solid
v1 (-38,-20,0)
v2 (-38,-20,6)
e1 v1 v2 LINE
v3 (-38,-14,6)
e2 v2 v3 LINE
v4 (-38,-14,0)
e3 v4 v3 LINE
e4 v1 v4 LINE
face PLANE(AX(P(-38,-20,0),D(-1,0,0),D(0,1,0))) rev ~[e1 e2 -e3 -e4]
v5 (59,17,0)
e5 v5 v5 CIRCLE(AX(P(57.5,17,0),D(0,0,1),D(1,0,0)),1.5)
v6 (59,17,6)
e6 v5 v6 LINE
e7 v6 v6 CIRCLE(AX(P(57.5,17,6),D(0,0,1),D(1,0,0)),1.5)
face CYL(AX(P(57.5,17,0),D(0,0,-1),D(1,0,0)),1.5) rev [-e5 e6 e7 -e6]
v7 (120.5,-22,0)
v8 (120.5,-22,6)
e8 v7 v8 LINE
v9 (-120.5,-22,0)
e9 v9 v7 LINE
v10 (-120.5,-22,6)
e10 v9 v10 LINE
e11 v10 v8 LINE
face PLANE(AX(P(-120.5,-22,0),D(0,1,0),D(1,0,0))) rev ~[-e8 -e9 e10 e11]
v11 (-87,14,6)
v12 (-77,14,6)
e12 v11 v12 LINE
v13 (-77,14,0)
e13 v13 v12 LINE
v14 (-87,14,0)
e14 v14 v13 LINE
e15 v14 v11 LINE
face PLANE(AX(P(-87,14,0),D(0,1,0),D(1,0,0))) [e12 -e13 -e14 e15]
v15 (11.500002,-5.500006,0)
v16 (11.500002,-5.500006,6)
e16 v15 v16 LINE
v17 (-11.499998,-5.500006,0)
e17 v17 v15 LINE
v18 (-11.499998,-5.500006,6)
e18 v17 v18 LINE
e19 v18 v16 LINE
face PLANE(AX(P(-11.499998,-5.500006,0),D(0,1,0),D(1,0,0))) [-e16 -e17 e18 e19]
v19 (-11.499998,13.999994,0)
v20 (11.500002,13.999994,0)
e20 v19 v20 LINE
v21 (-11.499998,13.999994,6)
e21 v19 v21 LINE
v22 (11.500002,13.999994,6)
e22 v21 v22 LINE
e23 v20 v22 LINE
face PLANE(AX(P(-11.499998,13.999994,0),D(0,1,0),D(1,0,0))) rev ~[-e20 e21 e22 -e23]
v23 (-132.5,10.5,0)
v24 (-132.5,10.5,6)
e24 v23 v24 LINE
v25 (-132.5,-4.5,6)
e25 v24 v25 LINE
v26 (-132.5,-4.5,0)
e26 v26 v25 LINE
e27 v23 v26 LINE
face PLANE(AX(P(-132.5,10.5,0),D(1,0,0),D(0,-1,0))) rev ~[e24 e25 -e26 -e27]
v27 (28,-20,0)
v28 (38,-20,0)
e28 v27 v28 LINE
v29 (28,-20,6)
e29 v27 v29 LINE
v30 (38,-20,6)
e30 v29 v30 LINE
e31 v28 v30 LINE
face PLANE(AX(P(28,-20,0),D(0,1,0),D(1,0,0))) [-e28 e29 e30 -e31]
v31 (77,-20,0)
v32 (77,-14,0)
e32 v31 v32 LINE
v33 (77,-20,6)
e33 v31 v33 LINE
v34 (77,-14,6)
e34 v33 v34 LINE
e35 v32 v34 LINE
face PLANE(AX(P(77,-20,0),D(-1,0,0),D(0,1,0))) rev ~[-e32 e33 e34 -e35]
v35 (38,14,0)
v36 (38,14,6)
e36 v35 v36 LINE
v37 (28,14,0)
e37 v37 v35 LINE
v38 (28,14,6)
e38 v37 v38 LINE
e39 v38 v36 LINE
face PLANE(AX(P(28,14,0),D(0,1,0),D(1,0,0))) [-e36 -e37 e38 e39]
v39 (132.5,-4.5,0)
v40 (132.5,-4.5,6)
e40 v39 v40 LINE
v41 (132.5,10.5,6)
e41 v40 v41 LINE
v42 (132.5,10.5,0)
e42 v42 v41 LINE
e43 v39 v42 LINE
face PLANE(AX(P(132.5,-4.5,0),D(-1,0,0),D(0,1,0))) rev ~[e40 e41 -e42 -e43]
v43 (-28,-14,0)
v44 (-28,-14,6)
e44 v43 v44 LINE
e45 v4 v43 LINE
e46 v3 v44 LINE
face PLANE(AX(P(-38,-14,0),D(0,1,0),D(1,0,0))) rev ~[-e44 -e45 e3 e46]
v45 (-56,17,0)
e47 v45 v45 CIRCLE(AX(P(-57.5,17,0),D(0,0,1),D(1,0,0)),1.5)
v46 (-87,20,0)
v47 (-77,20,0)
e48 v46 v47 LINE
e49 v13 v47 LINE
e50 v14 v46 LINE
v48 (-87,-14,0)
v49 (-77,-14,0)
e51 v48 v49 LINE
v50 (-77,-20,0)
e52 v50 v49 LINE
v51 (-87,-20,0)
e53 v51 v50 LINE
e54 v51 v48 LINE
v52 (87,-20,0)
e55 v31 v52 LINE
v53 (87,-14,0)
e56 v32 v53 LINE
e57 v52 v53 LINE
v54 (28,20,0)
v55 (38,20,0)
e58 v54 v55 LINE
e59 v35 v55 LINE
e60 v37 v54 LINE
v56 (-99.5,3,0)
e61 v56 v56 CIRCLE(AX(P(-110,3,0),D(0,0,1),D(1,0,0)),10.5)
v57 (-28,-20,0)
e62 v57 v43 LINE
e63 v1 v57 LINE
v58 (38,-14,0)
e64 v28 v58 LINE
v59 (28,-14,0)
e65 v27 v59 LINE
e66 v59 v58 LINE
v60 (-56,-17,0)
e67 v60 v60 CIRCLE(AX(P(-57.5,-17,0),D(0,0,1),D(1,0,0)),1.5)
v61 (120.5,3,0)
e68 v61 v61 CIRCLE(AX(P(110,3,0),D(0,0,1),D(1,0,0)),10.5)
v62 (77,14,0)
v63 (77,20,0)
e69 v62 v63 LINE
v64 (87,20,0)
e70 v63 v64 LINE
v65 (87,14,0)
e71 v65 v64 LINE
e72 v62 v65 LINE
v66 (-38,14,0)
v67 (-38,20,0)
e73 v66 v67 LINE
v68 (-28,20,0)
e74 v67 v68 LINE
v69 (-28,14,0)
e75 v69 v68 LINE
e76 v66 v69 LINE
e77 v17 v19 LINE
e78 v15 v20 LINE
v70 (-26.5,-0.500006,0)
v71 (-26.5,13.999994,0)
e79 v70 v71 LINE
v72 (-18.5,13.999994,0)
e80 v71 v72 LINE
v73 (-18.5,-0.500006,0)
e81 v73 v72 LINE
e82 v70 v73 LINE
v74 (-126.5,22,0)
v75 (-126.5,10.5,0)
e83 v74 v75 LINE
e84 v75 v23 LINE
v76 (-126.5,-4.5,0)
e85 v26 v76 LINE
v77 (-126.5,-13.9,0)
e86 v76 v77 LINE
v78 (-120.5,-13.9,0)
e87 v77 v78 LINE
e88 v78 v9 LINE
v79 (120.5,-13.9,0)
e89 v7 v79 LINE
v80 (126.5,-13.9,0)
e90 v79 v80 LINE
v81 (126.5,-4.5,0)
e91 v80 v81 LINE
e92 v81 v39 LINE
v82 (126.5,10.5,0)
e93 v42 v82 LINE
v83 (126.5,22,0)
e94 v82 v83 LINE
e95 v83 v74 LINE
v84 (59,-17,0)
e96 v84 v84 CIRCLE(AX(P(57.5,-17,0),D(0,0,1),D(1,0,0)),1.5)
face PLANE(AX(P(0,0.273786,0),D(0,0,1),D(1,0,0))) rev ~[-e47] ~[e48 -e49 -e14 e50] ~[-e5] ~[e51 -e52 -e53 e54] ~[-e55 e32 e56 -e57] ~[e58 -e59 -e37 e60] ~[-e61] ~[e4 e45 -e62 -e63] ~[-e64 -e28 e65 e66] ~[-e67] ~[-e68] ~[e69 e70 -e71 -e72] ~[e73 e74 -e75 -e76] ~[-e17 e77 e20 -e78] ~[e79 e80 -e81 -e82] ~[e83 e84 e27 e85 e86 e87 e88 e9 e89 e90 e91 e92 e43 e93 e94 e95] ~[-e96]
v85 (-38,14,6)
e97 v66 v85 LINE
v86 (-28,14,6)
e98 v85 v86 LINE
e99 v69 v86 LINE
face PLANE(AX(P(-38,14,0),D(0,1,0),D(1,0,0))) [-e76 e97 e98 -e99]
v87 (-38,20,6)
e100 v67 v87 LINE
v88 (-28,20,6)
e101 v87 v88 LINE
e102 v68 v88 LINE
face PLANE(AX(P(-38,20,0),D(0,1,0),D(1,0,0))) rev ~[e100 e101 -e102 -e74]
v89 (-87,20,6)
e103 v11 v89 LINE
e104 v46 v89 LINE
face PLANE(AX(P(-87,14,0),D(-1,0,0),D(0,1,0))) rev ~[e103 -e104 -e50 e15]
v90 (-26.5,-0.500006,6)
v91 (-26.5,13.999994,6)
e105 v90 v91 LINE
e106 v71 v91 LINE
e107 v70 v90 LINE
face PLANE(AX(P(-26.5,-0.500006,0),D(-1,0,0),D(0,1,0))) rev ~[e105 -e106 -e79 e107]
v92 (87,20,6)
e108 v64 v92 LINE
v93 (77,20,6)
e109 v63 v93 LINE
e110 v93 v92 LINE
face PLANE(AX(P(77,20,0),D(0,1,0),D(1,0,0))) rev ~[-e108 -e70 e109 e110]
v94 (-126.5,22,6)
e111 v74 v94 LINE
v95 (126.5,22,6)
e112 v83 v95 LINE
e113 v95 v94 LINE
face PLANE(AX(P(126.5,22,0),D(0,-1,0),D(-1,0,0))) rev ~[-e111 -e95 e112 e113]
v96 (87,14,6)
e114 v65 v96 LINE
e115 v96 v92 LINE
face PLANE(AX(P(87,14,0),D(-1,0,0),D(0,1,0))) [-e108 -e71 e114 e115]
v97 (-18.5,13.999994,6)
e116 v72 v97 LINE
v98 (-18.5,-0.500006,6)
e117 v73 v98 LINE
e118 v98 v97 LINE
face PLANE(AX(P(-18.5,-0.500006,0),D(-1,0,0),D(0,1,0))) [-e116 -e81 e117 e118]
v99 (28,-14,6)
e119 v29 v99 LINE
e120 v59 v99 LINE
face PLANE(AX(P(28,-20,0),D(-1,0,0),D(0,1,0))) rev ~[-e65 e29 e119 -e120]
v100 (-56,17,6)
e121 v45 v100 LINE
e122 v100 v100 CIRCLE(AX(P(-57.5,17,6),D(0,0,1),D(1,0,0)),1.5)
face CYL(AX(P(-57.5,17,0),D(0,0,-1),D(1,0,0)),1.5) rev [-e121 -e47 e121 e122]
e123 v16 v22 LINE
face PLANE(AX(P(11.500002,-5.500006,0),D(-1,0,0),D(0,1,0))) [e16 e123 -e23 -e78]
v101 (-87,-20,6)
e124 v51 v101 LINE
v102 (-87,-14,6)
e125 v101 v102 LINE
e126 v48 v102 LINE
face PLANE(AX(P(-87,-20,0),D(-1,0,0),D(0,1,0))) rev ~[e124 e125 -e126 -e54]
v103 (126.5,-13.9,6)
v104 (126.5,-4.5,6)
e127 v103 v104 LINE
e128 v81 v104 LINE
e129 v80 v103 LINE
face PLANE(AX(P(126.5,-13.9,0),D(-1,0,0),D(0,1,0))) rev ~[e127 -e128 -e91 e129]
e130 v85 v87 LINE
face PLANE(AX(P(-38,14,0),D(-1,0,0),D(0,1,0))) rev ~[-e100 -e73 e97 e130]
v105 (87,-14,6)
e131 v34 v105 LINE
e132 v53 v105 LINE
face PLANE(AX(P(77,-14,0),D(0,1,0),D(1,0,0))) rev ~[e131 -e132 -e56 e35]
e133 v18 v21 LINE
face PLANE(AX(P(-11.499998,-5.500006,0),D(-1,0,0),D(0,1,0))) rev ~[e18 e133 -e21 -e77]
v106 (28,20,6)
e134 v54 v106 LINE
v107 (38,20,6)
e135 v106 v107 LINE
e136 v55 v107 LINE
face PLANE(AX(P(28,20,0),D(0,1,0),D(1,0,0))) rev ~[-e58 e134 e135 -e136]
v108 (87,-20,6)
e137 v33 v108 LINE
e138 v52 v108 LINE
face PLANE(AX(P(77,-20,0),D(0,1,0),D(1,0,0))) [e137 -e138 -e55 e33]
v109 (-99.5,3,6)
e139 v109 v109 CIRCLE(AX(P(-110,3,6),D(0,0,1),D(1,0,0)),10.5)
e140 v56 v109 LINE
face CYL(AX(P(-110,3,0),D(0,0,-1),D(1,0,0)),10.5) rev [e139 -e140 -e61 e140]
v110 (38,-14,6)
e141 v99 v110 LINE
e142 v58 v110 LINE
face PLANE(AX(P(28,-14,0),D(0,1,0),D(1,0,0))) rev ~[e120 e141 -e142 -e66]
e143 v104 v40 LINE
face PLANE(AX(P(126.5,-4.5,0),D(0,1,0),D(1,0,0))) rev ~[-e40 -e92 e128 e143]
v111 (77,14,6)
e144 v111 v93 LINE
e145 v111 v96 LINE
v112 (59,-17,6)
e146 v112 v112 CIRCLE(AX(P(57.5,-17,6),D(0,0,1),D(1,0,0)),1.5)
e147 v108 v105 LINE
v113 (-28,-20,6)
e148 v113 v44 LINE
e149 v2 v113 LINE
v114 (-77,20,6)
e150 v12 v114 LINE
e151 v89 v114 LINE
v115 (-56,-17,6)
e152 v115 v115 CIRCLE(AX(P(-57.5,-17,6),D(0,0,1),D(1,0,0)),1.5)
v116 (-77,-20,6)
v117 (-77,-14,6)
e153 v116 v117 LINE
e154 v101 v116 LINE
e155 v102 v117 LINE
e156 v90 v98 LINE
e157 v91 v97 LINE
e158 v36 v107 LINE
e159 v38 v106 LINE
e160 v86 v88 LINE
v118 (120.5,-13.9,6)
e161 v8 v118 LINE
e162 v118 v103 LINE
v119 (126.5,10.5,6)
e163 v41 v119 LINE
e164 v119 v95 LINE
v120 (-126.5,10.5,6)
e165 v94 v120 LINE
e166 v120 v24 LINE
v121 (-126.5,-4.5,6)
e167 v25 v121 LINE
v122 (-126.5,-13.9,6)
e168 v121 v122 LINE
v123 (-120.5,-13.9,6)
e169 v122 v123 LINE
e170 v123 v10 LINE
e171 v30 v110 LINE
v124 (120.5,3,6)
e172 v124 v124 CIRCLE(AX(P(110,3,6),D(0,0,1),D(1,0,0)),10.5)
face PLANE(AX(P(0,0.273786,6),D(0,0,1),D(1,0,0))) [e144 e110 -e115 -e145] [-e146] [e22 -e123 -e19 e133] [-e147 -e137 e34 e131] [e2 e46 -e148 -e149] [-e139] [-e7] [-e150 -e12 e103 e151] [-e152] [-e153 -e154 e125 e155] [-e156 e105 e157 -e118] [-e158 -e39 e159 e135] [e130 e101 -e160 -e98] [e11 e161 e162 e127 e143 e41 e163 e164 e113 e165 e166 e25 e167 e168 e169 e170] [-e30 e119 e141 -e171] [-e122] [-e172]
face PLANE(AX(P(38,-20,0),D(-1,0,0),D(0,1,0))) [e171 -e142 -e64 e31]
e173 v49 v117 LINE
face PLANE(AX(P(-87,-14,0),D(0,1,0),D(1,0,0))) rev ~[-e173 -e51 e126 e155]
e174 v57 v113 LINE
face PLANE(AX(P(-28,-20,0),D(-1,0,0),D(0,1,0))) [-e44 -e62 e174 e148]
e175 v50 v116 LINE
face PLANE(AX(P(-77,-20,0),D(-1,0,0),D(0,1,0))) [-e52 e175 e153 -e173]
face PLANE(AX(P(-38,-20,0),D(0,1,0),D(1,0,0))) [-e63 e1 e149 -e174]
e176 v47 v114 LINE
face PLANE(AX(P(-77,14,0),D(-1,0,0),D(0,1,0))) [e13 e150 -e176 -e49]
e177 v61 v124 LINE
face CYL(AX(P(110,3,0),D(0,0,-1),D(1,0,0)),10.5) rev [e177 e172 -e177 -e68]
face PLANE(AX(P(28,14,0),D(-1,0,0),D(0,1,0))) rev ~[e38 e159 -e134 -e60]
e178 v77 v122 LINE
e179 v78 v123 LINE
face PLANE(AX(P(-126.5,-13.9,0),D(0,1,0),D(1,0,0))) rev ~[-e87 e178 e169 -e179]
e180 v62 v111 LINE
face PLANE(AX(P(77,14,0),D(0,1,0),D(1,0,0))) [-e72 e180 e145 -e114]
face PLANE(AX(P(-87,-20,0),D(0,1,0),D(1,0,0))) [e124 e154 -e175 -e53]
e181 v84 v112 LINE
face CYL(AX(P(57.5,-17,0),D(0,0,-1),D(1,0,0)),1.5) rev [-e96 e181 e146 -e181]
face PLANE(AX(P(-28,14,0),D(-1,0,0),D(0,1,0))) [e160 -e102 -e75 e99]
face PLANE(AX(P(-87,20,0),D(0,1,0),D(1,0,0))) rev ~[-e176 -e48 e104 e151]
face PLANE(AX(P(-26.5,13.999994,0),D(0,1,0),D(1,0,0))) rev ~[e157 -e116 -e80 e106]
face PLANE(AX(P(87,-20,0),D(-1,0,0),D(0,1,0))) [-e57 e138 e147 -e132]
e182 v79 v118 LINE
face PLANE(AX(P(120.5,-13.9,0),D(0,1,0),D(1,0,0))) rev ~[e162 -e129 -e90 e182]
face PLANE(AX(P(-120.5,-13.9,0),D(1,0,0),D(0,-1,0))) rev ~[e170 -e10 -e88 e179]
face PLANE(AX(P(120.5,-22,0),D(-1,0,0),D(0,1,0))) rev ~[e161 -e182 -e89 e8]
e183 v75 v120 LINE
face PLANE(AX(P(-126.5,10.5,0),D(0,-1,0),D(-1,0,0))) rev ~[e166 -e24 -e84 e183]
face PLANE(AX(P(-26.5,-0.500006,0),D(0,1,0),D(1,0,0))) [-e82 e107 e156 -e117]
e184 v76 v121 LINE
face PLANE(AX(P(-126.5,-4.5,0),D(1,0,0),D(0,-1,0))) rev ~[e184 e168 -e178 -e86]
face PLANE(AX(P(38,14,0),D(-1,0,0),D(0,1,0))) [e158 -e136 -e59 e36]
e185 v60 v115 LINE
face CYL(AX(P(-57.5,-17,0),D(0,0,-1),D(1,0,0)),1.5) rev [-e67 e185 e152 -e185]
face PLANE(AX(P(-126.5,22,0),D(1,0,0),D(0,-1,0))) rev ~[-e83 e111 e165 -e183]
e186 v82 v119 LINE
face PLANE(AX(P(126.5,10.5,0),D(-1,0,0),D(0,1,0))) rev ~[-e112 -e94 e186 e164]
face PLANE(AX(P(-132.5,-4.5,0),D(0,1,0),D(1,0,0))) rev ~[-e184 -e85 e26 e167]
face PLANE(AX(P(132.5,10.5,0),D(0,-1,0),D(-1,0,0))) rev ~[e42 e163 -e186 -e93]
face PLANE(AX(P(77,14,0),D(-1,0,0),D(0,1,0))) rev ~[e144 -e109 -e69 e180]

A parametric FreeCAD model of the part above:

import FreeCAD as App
import Part
import Sketcher


def add_polygon(sketch, points):
    """Adds a closed chain of lines whose ends are joined by coincident constraints."""
    first, n = sketch.GeometryCount, len(points)
    for a, b in zip(points, points[1:] + points[:1]):
        sketch.addGeometry(Part.LineSegment(App.Vector(*a, 0), App.Vector(*b, 0)), False)
    for i in range(n):
        sketch.addConstraint(Sketcher.Constraint("Coincident", first + i, 2, first + (i + 1) % n, 1))

doc = App.newDocument("Part")
body = doc.addObject("PartDesign::Body", "Body")

# Sketch on XY plane
sketch1 = doc.addObject("Sketcher::SketchObject", "Sketch")
body.addObject(sketch1)
sketch1.AttachmentSupport = (doc.XY_Plane, [""])
sketch1.MapMode = "FlatFace"
add_polygon(sketch1, [(-126.5, 22), (-126.5, 10.5), (-132.5, 10.5), (-132.5, -4.5), (-126.5, -4.5), (-126.5, -13.9), (-120.5, -13.9), (-120.5, -22), (120.5, -22), (120.5, -13.9), (126.5, -13.9), (126.5, -4.5), (132.5, -4.5), (132.5, 10.5), (126.5, 10.5), (126.5, 22)])  # lines 0-15
add_polygon(sketch1, [(-77, -20), (-87, -20), (-87, -14), (-77, -14)])  # lines 16-19
sketch1.addGeometry(Part.Circle(App.Vector(-57.5, -17, 0), App.Vector(0, 0, 1), 1.5), False)  # 20
add_polygon(sketch1, [(-28, -20), (-38, -20), (-38, -14), (-28, -14)])  # lines 21-24
add_polygon(sketch1, [(38, -20), (28, -20), (28, -14), (38, -14)])  # lines 25-28
sketch1.addGeometry(Part.Circle(App.Vector(57.5, -17, 0), App.Vector(0, 0, 1), 1.5), False)  # 29
add_polygon(sketch1, [(87, -20), (77, -20), (77, -14), (87, -14)])  # lines 30-33
sketch1.addGeometry(Part.Circle(App.Vector(-110, 3, 0), App.Vector(0, 0, 1), 10.5), False)  # 34
add_polygon(sketch1, [(-18.5, -0.5), (-26.5, -0.5), (-26.5, 14), (-18.5, 14)])  # lines 35-38
add_polygon(sketch1, [(-77, 14), (-87, 14), (-87, 20), (-77, 20)])  # lines 39-42
sketch1.addGeometry(Part.Circle(App.Vector(-57.5, 17, 0), App.Vector(0, 0, 1), 1.5), False)  # 43
add_polygon(sketch1, [(-28, 14), (-38, 14), (-38, 20), (-28, 20)])  # lines 44-47
add_polygon(sketch1, [(11.5, -5.5), (-11.5, -5.5), (-11.5, 14), (11.5, 14)])  # lines 48-51
sketch1.addGeometry(Part.Circle(App.Vector(110, 3, 0), App.Vector(0, 0, 1), 10.5), False)  # 52
add_polygon(sketch1, [(38, 14), (28, 14), (28, 20), (38, 20)])  # lines 53-56
sketch1.addGeometry(Part.Circle(App.Vector(57.5, 17, 0), App.Vector(0, 0, 1), 1.5), False)  # 57
add_polygon(sketch1, [(87, 14), (77, 14), (77, 20), (87, 20)])  # lines 58-61
sketch1.addConstraint([
    Sketcher.Constraint("Vertical", 0),
    Sketcher.Constraint("Horizontal", 1),
    Sketcher.Constraint("Vertical", 2),
    Sketcher.Constraint("Horizontal", 3),
    Sketcher.Constraint("Vertical", 4),
    Sketcher.Constraint("Horizontal", 5),
    Sketcher.Constraint("Vertical", 6),
    Sketcher.Constraint("Horizontal", 7),
    Sketcher.Constraint("Vertical", 8),
    Sketcher.Constraint("Horizontal", 9),
    Sketcher.Constraint("Vertical", 10),
    Sketcher.Constraint("Horizontal", 11),
    Sketcher.Constraint("Vertical", 12),
    Sketcher.Constraint("Horizontal", 13),
    Sketcher.Constraint("Vertical", 14),
    Sketcher.Constraint("Horizontal", 15),
    Sketcher.Constraint("Horizontal", 16),
    Sketcher.Constraint("Vertical", 17),
    Sketcher.Constraint("Horizontal", 18),
    Sketcher.Constraint("Vertical", 19),
    Sketcher.Constraint("Horizontal", 21),
    Sketcher.Constraint("Vertical", 22),
    Sketcher.Constraint("Horizontal", 23),
    Sketcher.Constraint("Vertical", 24),
    Sketcher.Constraint("Horizontal", 25),
    Sketcher.Constraint("Vertical", 26),
    Sketcher.Constraint("Horizontal", 27),
    Sketcher.Constraint("Vertical", 28),
    Sketcher.Constraint("Horizontal", 30),
    Sketcher.Constraint("Vertical", 31),
    Sketcher.Constraint("Horizontal", 32),
    Sketcher.Constraint("Vertical", 33),
    Sketcher.Constraint("Horizontal", 35),
    Sketcher.Constraint("Vertical", 36),
    Sketcher.Constraint("Horizontal", 37),
    Sketcher.Constraint("Vertical", 38),
    Sketcher.Constraint("Horizontal", 39),
    Sketcher.Constraint("Vertical", 40),
    Sketcher.Constraint("Horizontal", 41),
    Sketcher.Constraint("Vertical", 42),
    Sketcher.Constraint("Horizontal", 44),
    Sketcher.Constraint("Vertical", 45),
    Sketcher.Constraint("Horizontal", 46),
    Sketcher.Constraint("Vertical", 47),
    Sketcher.Constraint("Horizontal", 48),
    Sketcher.Constraint("Vertical", 49),
    Sketcher.Constraint("Horizontal", 50),
    Sketcher.Constraint("Vertical", 51),
    Sketcher.Constraint("Horizontal", 53),
    Sketcher.Constraint("Vertical", 54),
    Sketcher.Constraint("Horizontal", 55),
    Sketcher.Constraint("Vertical", 56),
    Sketcher.Constraint("Horizontal", 58),
    Sketcher.Constraint("Vertical", 59),
    Sketcher.Constraint("Horizontal", 60),
    Sketcher.Constraint("Vertical", 61),
    Sketcher.Constraint("Equal", 20, 29),
    Sketcher.Constraint("Equal", 29, 43),
    Sketcher.Constraint("Equal", 34, 52),
    Sketcher.Constraint("Equal", 43, 57),
    Sketcher.Constraint("Symmetric", 29, 3, 43, 3, -1, 1),
    Sketcher.Constraint("Symmetric", 20, 3, 57, 3, -1, 1),
    Sketcher.Constraint("Symmetric", 32, 2, 39, 2, -1, 1),
    Sketcher.Constraint("Symmetric", 30, 2, 41, 2, -1, 1),
    Sketcher.Constraint("Symmetric", 27, 2, 44, 2, -1, 1),
    Sketcher.Constraint("Symmetric", 25, 2, 46, 2, -1, 1),
    Sketcher.Constraint("Symmetric", 23, 2, 53, 2, -1, 1),
    Sketcher.Constraint("Symmetric", 21, 2, 55, 2, -1, 1),
    Sketcher.Constraint("Symmetric", 18, 2, 58, 2, -1, 1),
    Sketcher.Constraint("Symmetric", 16, 2, 60, 2, -1, 1),
    Sketcher.Constraint("Symmetric", 20, 3, 29, 3, -2),
    Sketcher.Constraint("Symmetric", 34, 3, 52, 3, -2),
    Sketcher.Constraint("Symmetric", 5, 2, 8, 2, -2),
    Sketcher.Constraint("Symmetric", 3, 2, 10, 2, -2),
    Sketcher.Constraint("Symmetric", 1, 2, 12, 2, -2),
    Sketcher.Constraint("Symmetric", 24, 2, 25, 2, -2),
    Sketcher.Constraint("Symmetric", 22, 2, 27, 2, -2),
    Sketcher.Constraint("Symmetric", 19, 2, 30, 2, -2),
    Sketcher.Constraint("Symmetric", 17, 2, 32, 2, -2),
    Sketcher.Constraint("Horizontal", 19, 2, 21, 2),
    Sketcher.Constraint("Horizontal", 18, 2, 22, 2),
    Sketcher.Constraint("Horizontal", 37, 2, 49, 2),
    Sketcher.Constraint("Vertical", 0, 2, 3, 2),
    Sketcher.Constraint("Vertical", 10, 2, 13, 2),
    Sketcher.Constraint("Equal", 3, 5),
    Sketcher.Constraint("Equal", 18, 21),
    Sketcher.Constraint("Equal", 13, 17),
    Sketcher.Constraint("Diameter", 20, 3.0),
    Sketcher.Constraint("Diameter", 34, 21.0),
    Sketcher.Constraint("DistanceX", 1, 2, 1, 1, 6.0),
    Sketcher.Constraint("DistanceX", 7, 1, 7, 2, 241.0),
    Sketcher.Constraint("DistanceX", 16, 2, 16, 1, 10.0),
    Sketcher.Constraint("DistanceX", 35, 2, 35, 1, 8.0),
    Sketcher.Constraint("DistanceX", 48, 2, 48, 1, 23.0),
    Sketcher.Constraint("DistanceY", 2, 2, 2, 1, 15.0),
    Sketcher.Constraint("DistanceY", 0, 2, 0, 1, 11.5),
    Sketcher.Constraint("DistanceY", 4, 2, 4, 1, 9.4),
    Sketcher.Constraint("DistanceY", 6, 2, 6, 1, 8.1),
    Sketcher.Constraint("DistanceY", 36, 1, 36, 2, 14.5),
    Sketcher.Constraint("DistanceY", 49, 1, 49, 2, 19.5),
    Sketcher.Constraint("DistanceY", 20, 3, -1, 1, 17.0),
    Sketcher.Constraint("DistanceX", 34, 3, -1, 1, 110.0),
    Sketcher.Constraint("DistanceY", -1, 1, 34, 3, 3.0),
    Sketcher.Constraint("DistanceY", 6, 2, -1, 1, 22.0),
    Sketcher.Constraint("DistanceX", 16, 2, -1, 1, 87.0),
    Sketcher.Constraint("DistanceY", 16, 2, -1, 1, 20.0),
    Sketcher.Constraint("DistanceX", 21, 2, -1, 1, 38.0),
    Sketcher.Constraint("DistanceX", 20, 3, -1, 1, 57.5),
    Sketcher.Constraint("DistanceX", 35, 2, -1, 1, 26.5),
    Sketcher.Constraint("DistanceY", 35, 2, -1, 1, 0.500006),
    Sketcher.Constraint("DistanceX", 48, 2, -1, 1, 11.499998),
])
pad1 = doc.addObject("PartDesign::Pad", "Pad")
body.addObject(pad1)
pad1.Profile = sketch1
pad1.Length = 6

doc.recompute()
